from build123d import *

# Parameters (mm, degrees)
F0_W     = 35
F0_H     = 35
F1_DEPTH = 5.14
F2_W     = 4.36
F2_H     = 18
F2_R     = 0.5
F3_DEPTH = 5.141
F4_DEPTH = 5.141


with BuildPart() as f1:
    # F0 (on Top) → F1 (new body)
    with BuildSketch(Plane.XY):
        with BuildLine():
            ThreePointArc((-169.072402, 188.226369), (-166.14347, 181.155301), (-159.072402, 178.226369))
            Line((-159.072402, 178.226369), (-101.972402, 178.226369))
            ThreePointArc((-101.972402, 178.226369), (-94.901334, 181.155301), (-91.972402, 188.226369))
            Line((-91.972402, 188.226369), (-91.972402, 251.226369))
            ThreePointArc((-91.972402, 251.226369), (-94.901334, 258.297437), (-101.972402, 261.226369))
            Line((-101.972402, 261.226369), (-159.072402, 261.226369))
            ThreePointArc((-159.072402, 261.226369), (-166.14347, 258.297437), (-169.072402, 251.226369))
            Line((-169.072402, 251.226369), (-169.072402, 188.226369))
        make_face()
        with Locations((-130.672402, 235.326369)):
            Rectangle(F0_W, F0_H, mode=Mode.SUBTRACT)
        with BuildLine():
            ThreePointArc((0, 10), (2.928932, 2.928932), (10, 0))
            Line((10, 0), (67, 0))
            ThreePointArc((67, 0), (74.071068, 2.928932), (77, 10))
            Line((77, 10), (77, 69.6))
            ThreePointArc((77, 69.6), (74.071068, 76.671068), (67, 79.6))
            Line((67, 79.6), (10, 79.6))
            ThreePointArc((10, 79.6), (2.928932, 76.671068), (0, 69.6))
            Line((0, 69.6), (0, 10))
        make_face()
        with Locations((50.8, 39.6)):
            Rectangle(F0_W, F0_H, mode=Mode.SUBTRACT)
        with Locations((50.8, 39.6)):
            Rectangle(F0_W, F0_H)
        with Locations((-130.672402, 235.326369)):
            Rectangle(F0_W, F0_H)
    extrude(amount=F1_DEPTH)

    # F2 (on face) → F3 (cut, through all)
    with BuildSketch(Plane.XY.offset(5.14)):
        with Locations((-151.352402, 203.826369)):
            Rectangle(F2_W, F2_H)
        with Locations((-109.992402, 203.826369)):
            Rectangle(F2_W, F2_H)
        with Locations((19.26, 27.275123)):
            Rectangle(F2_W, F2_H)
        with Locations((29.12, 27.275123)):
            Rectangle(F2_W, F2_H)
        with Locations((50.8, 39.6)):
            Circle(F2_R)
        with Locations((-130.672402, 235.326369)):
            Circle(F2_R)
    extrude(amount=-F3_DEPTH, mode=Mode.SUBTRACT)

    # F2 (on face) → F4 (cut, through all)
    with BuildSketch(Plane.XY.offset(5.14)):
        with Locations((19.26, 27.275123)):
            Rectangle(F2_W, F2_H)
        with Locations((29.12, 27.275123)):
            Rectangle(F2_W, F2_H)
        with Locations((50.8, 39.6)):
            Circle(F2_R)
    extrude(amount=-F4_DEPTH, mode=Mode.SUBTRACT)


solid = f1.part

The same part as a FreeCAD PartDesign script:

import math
import FreeCAD as App
import Part
import Sketcher

doc = App.newDocument("Part")
body = doc.addObject("PartDesign::Body", "Body")
body.AllowCompound = True

sketch1 = body.newObject("Sketcher::SketchObject", "Sketch")
sketch1.AttachmentSupport = (doc.getObject("XY_Plane"), [""])
sketch1.MapMode = "FlatFace"
sketch1.addGeometry(Part.ArcOfCircle(Part.Circle(App.Vector(-159, 188, 0), App.Vector(0, 0, 1), 10), math.radians(180), math.radians(270)), False)
sketch1.addGeometry(Part.LineSegment(App.Vector(-159, 178, 0), App.Vector(-102, 178, 0)), False)
sketch1.addGeometry(Part.ArcOfCircle(Part.Circle(App.Vector(-102, 188, 0), App.Vector(0, 0, 1), 10), math.radians(-90), math.radians(0)), False)
sketch1.addGeometry(Part.LineSegment(App.Vector(-92, 188, 0), App.Vector(-92, 251, 0)), False)
sketch1.addGeometry(Part.ArcOfCircle(Part.Circle(App.Vector(-102, 251, 0), App.Vector(0, 0, 1), 10), math.radians(0), math.radians(90)), False)
sketch1.addGeometry(Part.LineSegment(App.Vector(-102, 261, 0), App.Vector(-159, 261, 0)), False)
sketch1.addGeometry(Part.ArcOfCircle(Part.Circle(App.Vector(-159, 251, 0), App.Vector(0, 0, 1), 10), math.radians(90), math.radians(180)), False)
sketch1.addGeometry(Part.LineSegment(App.Vector(-169, 251, 0), App.Vector(-169, 188, 0)), False)
sketch1.addGeometry(Part.ArcOfCircle(Part.Circle(App.Vector(10, 10, 0), App.Vector(0, 0, 1), 10), math.radians(180), math.radians(270)), False)
sketch1.addGeometry(Part.LineSegment(App.Vector(10, 0, 0), App.Vector(67, 0, 0)), False)
sketch1.addGeometry(Part.ArcOfCircle(Part.Circle(App.Vector(67, 10, 0), App.Vector(0, 0, 1), 10), math.radians(-90), math.radians(0)), False)
sketch1.addGeometry(Part.LineSegment(App.Vector(77, 10, 0), App.Vector(77, 70, 0)), False)
sketch1.addGeometry(Part.ArcOfCircle(Part.Circle(App.Vector(67, 70, 0), App.Vector(0, 0, 1), 10), math.radians(0), math.radians(90)), False)
sketch1.addGeometry(Part.LineSegment(App.Vector(67, 80, 0), App.Vector(10, 80, 0)), False)
sketch1.addGeometry(Part.ArcOfCircle(Part.Circle(App.Vector(10, 70, 0), App.Vector(0, 0, 1), 10), math.radians(90), math.radians(180)), False)
sketch1.addGeometry(Part.LineSegment(App.Vector(0, 70, 0), App.Vector(0, 10, 0)), False)
sketch1.addConstraint(Sketcher.Constraint("Tangent", 0, 2, 1, 1))
sketch1.addConstraint(Sketcher.Constraint("Tangent", 1, 2, 2, 1))
sketch1.addConstraint(Sketcher.Constraint("Tangent", 2, 2, 3, 1))
sketch1.addConstraint(Sketcher.Constraint("Tangent", 3, 2, 4, 1))
sketch1.addConstraint(Sketcher.Constraint("Tangent", 4, 2, 5, 1))
sketch1.addConstraint(Sketcher.Constraint("Tangent", 5, 2, 6, 1))
sketch1.addConstraint(Sketcher.Constraint("Tangent", 6, 2, 7, 1))
sketch1.addConstraint(Sketcher.Constraint("Tangent", 7, 2, 0, 1))
sketch1.addConstraint(Sketcher.Constraint("Tangent", 8, 2, 9, 1))
sketch1.addConstraint(Sketcher.Constraint("Tangent", 9, 2, 10, 1))
sketch1.addConstraint(Sketcher.Constraint("Tangent", 10, 2, 11, 1))
sketch1.addConstraint(Sketcher.Constraint("Tangent", 11, 2, 12, 1))
sketch1.addConstraint(Sketcher.Constraint("Tangent", 12, 2, 13, 1))
sketch1.addConstraint(Sketcher.Constraint("Tangent", 13, 2, 14, 1))
sketch1.addConstraint(Sketcher.Constraint("Tangent", 14, 2, 15, 1))
sketch1.addConstraint(Sketcher.Constraint("Tangent", 15, 2, 8, 1))
sketch1.addConstraint(Sketcher.Constraint("Horizontal", 1))
sketch1.addConstraint(Sketcher.Constraint("Vertical", 3))
sketch1.addConstraint(Sketcher.Constraint("Horizontal", 5))
sketch1.addConstraint(Sketcher.Constraint("Vertical", 7))
sketch1.addConstraint(Sketcher.Constraint("Horizontal", 9))
sketch1.addConstraint(Sketcher.Constraint("Vertical", 11))
sketch1.addConstraint(Sketcher.Constraint("Horizontal", 13))
sketch1.addConstraint(Sketcher.Constraint("Vertical", 15))
sketch1.addConstraint(Sketcher.Constraint("Equal", 0, 2))
sketch1.addConstraint(Sketcher.Constraint("Equal", 2, 4))
sketch1.addConstraint(Sketcher.Constraint("Equal", 4, 6))
sketch1.addConstraint(Sketcher.Constraint("Equal", 6, 8))
sketch1.addConstraint(Sketcher.Constraint("Equal", 8, 10))
sketch1.addConstraint(Sketcher.Constraint("Equal", 10, 12))
sketch1.addConstraint(Sketcher.Constraint("Equal", 12, 14))
sketch1.addConstraint(Sketcher.Constraint("PointOnObject", 8, 2, -1))
sketch1.addConstraint(Sketcher.Constraint("PointOnObject", 14, 2, -2))
sketch1.addConstraint(Sketcher.Constraint("Radius", 0, 9.999999))
sketch1.addConstraint(Sketcher.Constraint("DistanceX", 9, 1, 9, 2, 57.0))
sketch1.addConstraint(Sketcher.Constraint("DistanceY", 3, 1, 3, 2, 63.0))
sketch1.addConstraint(Sketcher.Constraint("DistanceX", 1, 1, 1, 2, 57.1))
sketch1.addConstraint(Sketcher.Constraint("DistanceY", 11, 1, 11, 2, 59.6))
sketch1.addConstraint(Sketcher.Constraint("DistanceX", 2, 3, -1, 1, 101.972401))
sketch1.addConstraint(Sketcher.Constraint("DistanceY", -1, 1, 0, 3, 188.226368))
pad1 = body.newObject("PartDesign::Pad", "Pad")
pad1.Profile = sketch1
pad1.Length = 5.14

sketch2 = body.newObject("Sketcher::SketchObject", "Sketch001")
sketch2.AttachmentSupport = (doc.getObject("XY_Plane"), [""])
sketch2.MapMode = "FlatFace"
sketch2.AttachmentOffset = App.Placement(App.Vector(0, 0, 5.14), App.Rotation())
sketch2.addGeometry(Part.LineSegment(App.Vector(-153.5, 212.8, 0), App.Vector(-153.5, 194.8, 0)), False)
sketch2.addGeometry(Part.LineSegment(App.Vector(-153.5, 194.8, 0), App.Vector(-149.2, 194.8, 0)), False)
sketch2.addGeometry(Part.LineSegment(App.Vector(-149.2, 194.8, 0), App.Vector(-149.2, 212.8, 0)), False)
sketch2.addGeometry(Part.LineSegment(App.Vector(-149.2, 212.8, 0), App.Vector(-153.5, 212.8, 0)), False)
sketch2.addGeometry(Part.LineSegment(App.Vector(-112.2, 212.8, 0), App.Vector(-112.2, 194.8, 0)), False)
sketch2.addGeometry(Part.LineSegment(App.Vector(-112.2, 194.8, 0), App.Vector(-107.8, 194.8, 0)), False)
sketch2.addGeometry(Part.LineSegment(App.Vector(-107.8, 194.8, 0), App.Vector(-107.8, 212.8, 0)), False)
sketch2.addGeometry(Part.LineSegment(App.Vector(-107.8, 212.8, 0), App.Vector(-112.2, 212.8, 0)), False)
sketch2.addGeometry(Part.LineSegment(App.Vector(17.1, 36.3, 0), App.Vector(17.1, 18.3, 0)), False)
sketch2.addGeometry(Part.LineSegment(App.Vector(17.1, 18.3, 0), App.Vector(21.4, 18.3, 0)), False)
sketch2.addGeometry(Part.LineSegment(App.Vector(21.4, 18.3, 0), App.Vector(21.4, 36.3, 0)), False)
sketch2.addGeometry(Part.LineSegment(App.Vector(21.4, 36.3, 0), App.Vector(17.1, 36.3, 0)), False)
sketch2.addGeometry(Part.LineSegment(App.Vector(26.9, 36.3, 0), App.Vector(26.9, 18.3, 0)), False)
sketch2.addGeometry(Part.LineSegment(App.Vector(26.9, 18.3, 0), App.Vector(31.3, 18.3, 0)), False)
sketch2.addGeometry(Part.LineSegment(App.Vector(31.3, 18.3, 0), App.Vector(31.3, 36.3, 0)), False)
sketch2.addGeometry(Part.LineSegment(App.Vector(31.3, 36.3, 0), App.Vector(26.9, 36.3, 0)), False)
sketch2.addGeometry(Part.Circle(App.Vector(50.8, 39.6, 0), App.Vector(0, 0, 1), 0.5), False)
sketch2.addGeometry(Part.Circle(App.Vector(-130.7, 235.3, 0), App.Vector(0, 0, 1), 0.5), False)
sketch2.addConstraint(Sketcher.Constraint("Coincident", 0, 2, 1, 1))
sketch2.addConstraint(Sketcher.Constraint("Coincident", 1, 2, 2, 1))
sketch2.addConstraint(Sketcher.Constraint("Coincident", 2, 2, 3, 1))
sketch2.addConstraint(Sketcher.Constraint("Coincident", 3, 2, 0, 1))
sketch2.addConstraint(Sketcher.Constraint("Coincident", 4, 2, 5, 1))
sketch2.addConstraint(Sketcher.Constraint("Coincident", 5, 2, 6, 1))
sketch2.addConstraint(Sketcher.Constraint("Coincident", 6, 2, 7, 1))
sketch2.addConstraint(Sketcher.Constraint("Coincident", 7, 2, 4, 1))
sketch2.addConstraint(Sketcher.Constraint("Coincident", 8, 2, 9, 1))
sketch2.addConstraint(Sketcher.Constraint("Coincident", 9, 2, 10, 1))
sketch2.addConstraint(Sketcher.Constraint("Coincident", 10, 2, 11, 1))
sketch2.addConstraint(Sketcher.Constraint("Coincident", 11, 2, 8, 1))
sketch2.addConstraint(Sketcher.Constraint("Coincident", 12, 2, 13, 1))
sketch2.addConstraint(Sketcher.Constraint("Coincident", 13, 2, 14, 1))
sketch2.addConstraint(Sketcher.Constraint("Coincident", 14, 2, 15, 1))
sketch2.addConstraint(Sketcher.Constraint("Coincident", 15, 2, 12, 1))
sketch2.addConstraint(Sketcher.Constraint("Vertical", 0))
sketch2.addConstraint(Sketcher.Constraint("Horizontal", 1))
sketch2.addConstraint(Sketcher.Constraint("Vertical", 2))
sketch2.addConstraint(Sketcher.Constraint("Horizontal", 3))
sketch2.addConstraint(Sketcher.Constraint("Vertical", 4))
sketch2.addConstraint(Sketcher.Constraint("Horizontal", 5))
sketch2.addConstraint(Sketcher.Constraint("Vertical", 6))
sketch2.addConstraint(Sketcher.Constraint("Horizontal", 7))
sketch2.addConstraint(Sketcher.Constraint("Vertical", 8))
sketch2.addConstraint(Sketcher.Constraint("Horizontal", 9))
sketch2.addConstraint(Sketcher.Constraint("Vertical", 10))
sketch2.addConstraint(Sketcher.Constraint("Horizontal", 11))
sketch2.addConstraint(Sketcher.Constraint("Vertical", 12))
sketch2.addConstraint(Sketcher.Constraint("Horizontal", 13))
sketch2.addConstraint(Sketcher.Constraint("Vertical", 14))
sketch2.addConstraint(Sketcher.Constraint("Horizontal", 15))
sketch2.addConstraint(Sketcher.Constraint("Equal", 16, 17))
sketch2.addConstraint(Sketcher.Constraint("Horizontal", 1, 2, 4, 2))
sketch2.addConstraint(Sketcher.Constraint("Horizontal", 3, 2, 6, 2))
sketch2.addConstraint(Sketcher.Constraint("Horizontal", 9, 2, 12, 2))
sketch2.addConstraint(Sketcher.Constraint("Horizontal", 11, 2, 14, 2))
sketch2.addConstraint(Sketcher.Constraint("Equal", 3, 5))
sketch2.addConstraint(Sketcher.Constraint("Equal", 7, 9))
sketch2.addConstraint(Sketcher.Constraint("Equal", 11, 13))
sketch2.addConstraint(Sketcher.Constraint("Equal", 6, 8))
sketch2.addConstraint(Sketcher.Constraint("Diameter", 16, 1.0))
sketch2.addConstraint(Sketcher.Constraint("DistanceY", 0, 2, 0, 1, 18.0))
sketch2.addConstraint(Sketcher.Constraint("DistanceX", 1, 2, 4, 2, 37.0))
sketch2.addConstraint(Sketcher.Constraint("DistanceX", 1, 1, 1, 2, 4.36))
sketch2.addConstraint(Sketcher.Constraint("DistanceX", -1, 1, 16, 3, 50.8))
sketch2.addConstraint(Sketcher.Constraint("DistanceY", -1, 1, 16, 3, 39.6))
sketch2.addConstraint(Sketcher.Constraint("DistanceX", -1, 1, 13, 2, 31.3))
sketch2.addConstraint(Sketcher.Constraint("DistanceY", 0, 2, 17, 3, 40.5))
sketch2.addConstraint(Sketcher.Constraint("DistanceX", 1, 2, 17, 3, 18.5))
sketch2.addConstraint(Sketcher.Constraint("DistanceX", 9, 2, 12, 2, 5.5))
sketch2.addConstraint(Sketcher.Constraint("DistanceX", 17, 3, -1, 1, 130.672402))
sketch2.addConstraint(Sketcher.Constraint("DistanceY", -1, 1, 17, 3, 235.326369))
sketch2.addConstraint(Sketcher.Constraint("DistanceY", -1, 1, 8, 2, 18.275123))
pocket1 = body.newObject("PartDesign::Pocket", "Pocket")
pocket1.Profile = sketch2
pocket1.Type = "ThroughAll"

sketch3 = body.newObject("Sketcher::SketchObject", "Sketch002")
sketch3.AttachmentSupport = (doc.getObject("XY_Plane"), [""])
sketch3.MapMode = "FlatFace"
sketch3.AttachmentOffset = App.Placement(App.Vector(0, 0, 5.14), App.Rotation())
sketch3.addGeometry(Part.LineSegment(App.Vector(17.1, 36.3, 0), App.Vector(17.1, 18.3, 0)), False)
sketch3.addGeometry(Part.LineSegment(App.Vector(17.1, 18.3, 0), App.Vector(21.4, 18.3, 0)), False)
sketch3.addGeometry(Part.LineSegment(App.Vector(21.4, 18.3, 0), App.Vector(21.4, 36.3, 0)), False)
sketch3.addGeometry(Part.LineSegment(App.Vector(21.4, 36.3, 0), App.Vector(17.1, 36.3, 0)), False)
sketch3.addGeometry(Part.LineSegment(App.Vector(26.9, 36.3, 0), App.Vector(26.9, 18.3, 0)), False)
sketch3.addGeometry(Part.LineSegment(App.Vector(26.9, 18.3, 0), App.Vector(31.3, 18.3, 0)), False)
sketch3.addGeometry(Part.LineSegment(App.Vector(31.3, 18.3, 0), App.Vector(31.3, 36.3, 0)), False)
sketch3.addGeometry(Part.LineSegment(App.Vector(31.3, 36.3, 0), App.Vector(26.9, 36.3, 0)), False)
sketch3.addGeometry(Part.Circle(App.Vector(50.8, 39.6, 0), App.Vector(0, 0, 1), 0.5), False)
sketch3.addConstraint(Sketcher.Constraint("Coincident", 0, 2, 1, 1))
sketch3.addConstraint(Sketcher.Constraint("Coincident", 1, 2, 2, 1))
sketch3.addConstraint(Sketcher.Constraint("Coincident", 2, 2, 3, 1))
sketch3.addConstraint(Sketcher.Constraint("Coincident", 3, 2, 0, 1))
sketch3.addConstraint(Sketcher.Constraint("Coincident", 4, 2, 5, 1))
sketch3.addConstraint(Sketcher.Constraint("Coincident", 5, 2, 6, 1))
sketch3.addConstraint(Sketcher.Constraint("Coincident", 6, 2, 7, 1))
sketch3.addConstraint(Sketcher.Constraint("Coincident", 7, 2, 4, 1))
sketch3.addConstraint(Sketcher.Constraint("Vertical", 0))
sketch3.addConstraint(Sketcher.Constraint("Horizontal", 1))
sketch3.addConstraint(Sketcher.Constraint("Vertical", 2))
sketch3.addConstraint(Sketcher.Constraint("Horizontal", 3))
sketch3.addConstraint(Sketcher.Constraint("Vertical", 4))
sketch3.addConstraint(Sketcher.Constraint("Horizontal", 5))
sketch3.addConstraint(Sketcher.Constraint("Vertical", 6))
sketch3.addConstraint(Sketcher.Constraint("Horizontal", 7))
sketch3.addConstraint(Sketcher.Constraint("Horizontal", 1, 2, 4, 2))
sketch3.addConstraint(Sketcher.Constraint("Horizontal", 3, 2, 6, 2))
sketch3.addConstraint(Sketcher.Constraint("Equal", 3, 5))
sketch3.addConstraint(Sketcher.Constraint("Diameter", 8, 1.0))
sketch3.addConstraint(Sketcher.Constraint("DistanceY", 0, 2, 0, 1, 18.0))
sketch3.addConstraint(Sketcher.Constraint("DistanceX", 1, 1, 1, 2, 4.36))
sketch3.addConstraint(Sketcher.Constraint("DistanceX", -1, 1, 8, 3, 50.8))
sketch3.addConstraint(Sketcher.Constraint("DistanceY", -1, 1, 8, 3, 39.6))
sketch3.addConstraint(Sketcher.Constraint("DistanceX", -1, 1, 5, 2, 31.3))
sketch3.addConstraint(Sketcher.Constraint("DistanceX", 1, 2, 4, 2, 5.5))
sketch3.addConstraint(Sketcher.Constraint("DistanceY", -1, 1, 0, 2, 18.275123))
pocket2 = body.newObject("PartDesign::Pocket", "Pocket001")
pocket2.Profile = sketch3
pocket2.Type = "ThroughAll"

doc.recompute()
